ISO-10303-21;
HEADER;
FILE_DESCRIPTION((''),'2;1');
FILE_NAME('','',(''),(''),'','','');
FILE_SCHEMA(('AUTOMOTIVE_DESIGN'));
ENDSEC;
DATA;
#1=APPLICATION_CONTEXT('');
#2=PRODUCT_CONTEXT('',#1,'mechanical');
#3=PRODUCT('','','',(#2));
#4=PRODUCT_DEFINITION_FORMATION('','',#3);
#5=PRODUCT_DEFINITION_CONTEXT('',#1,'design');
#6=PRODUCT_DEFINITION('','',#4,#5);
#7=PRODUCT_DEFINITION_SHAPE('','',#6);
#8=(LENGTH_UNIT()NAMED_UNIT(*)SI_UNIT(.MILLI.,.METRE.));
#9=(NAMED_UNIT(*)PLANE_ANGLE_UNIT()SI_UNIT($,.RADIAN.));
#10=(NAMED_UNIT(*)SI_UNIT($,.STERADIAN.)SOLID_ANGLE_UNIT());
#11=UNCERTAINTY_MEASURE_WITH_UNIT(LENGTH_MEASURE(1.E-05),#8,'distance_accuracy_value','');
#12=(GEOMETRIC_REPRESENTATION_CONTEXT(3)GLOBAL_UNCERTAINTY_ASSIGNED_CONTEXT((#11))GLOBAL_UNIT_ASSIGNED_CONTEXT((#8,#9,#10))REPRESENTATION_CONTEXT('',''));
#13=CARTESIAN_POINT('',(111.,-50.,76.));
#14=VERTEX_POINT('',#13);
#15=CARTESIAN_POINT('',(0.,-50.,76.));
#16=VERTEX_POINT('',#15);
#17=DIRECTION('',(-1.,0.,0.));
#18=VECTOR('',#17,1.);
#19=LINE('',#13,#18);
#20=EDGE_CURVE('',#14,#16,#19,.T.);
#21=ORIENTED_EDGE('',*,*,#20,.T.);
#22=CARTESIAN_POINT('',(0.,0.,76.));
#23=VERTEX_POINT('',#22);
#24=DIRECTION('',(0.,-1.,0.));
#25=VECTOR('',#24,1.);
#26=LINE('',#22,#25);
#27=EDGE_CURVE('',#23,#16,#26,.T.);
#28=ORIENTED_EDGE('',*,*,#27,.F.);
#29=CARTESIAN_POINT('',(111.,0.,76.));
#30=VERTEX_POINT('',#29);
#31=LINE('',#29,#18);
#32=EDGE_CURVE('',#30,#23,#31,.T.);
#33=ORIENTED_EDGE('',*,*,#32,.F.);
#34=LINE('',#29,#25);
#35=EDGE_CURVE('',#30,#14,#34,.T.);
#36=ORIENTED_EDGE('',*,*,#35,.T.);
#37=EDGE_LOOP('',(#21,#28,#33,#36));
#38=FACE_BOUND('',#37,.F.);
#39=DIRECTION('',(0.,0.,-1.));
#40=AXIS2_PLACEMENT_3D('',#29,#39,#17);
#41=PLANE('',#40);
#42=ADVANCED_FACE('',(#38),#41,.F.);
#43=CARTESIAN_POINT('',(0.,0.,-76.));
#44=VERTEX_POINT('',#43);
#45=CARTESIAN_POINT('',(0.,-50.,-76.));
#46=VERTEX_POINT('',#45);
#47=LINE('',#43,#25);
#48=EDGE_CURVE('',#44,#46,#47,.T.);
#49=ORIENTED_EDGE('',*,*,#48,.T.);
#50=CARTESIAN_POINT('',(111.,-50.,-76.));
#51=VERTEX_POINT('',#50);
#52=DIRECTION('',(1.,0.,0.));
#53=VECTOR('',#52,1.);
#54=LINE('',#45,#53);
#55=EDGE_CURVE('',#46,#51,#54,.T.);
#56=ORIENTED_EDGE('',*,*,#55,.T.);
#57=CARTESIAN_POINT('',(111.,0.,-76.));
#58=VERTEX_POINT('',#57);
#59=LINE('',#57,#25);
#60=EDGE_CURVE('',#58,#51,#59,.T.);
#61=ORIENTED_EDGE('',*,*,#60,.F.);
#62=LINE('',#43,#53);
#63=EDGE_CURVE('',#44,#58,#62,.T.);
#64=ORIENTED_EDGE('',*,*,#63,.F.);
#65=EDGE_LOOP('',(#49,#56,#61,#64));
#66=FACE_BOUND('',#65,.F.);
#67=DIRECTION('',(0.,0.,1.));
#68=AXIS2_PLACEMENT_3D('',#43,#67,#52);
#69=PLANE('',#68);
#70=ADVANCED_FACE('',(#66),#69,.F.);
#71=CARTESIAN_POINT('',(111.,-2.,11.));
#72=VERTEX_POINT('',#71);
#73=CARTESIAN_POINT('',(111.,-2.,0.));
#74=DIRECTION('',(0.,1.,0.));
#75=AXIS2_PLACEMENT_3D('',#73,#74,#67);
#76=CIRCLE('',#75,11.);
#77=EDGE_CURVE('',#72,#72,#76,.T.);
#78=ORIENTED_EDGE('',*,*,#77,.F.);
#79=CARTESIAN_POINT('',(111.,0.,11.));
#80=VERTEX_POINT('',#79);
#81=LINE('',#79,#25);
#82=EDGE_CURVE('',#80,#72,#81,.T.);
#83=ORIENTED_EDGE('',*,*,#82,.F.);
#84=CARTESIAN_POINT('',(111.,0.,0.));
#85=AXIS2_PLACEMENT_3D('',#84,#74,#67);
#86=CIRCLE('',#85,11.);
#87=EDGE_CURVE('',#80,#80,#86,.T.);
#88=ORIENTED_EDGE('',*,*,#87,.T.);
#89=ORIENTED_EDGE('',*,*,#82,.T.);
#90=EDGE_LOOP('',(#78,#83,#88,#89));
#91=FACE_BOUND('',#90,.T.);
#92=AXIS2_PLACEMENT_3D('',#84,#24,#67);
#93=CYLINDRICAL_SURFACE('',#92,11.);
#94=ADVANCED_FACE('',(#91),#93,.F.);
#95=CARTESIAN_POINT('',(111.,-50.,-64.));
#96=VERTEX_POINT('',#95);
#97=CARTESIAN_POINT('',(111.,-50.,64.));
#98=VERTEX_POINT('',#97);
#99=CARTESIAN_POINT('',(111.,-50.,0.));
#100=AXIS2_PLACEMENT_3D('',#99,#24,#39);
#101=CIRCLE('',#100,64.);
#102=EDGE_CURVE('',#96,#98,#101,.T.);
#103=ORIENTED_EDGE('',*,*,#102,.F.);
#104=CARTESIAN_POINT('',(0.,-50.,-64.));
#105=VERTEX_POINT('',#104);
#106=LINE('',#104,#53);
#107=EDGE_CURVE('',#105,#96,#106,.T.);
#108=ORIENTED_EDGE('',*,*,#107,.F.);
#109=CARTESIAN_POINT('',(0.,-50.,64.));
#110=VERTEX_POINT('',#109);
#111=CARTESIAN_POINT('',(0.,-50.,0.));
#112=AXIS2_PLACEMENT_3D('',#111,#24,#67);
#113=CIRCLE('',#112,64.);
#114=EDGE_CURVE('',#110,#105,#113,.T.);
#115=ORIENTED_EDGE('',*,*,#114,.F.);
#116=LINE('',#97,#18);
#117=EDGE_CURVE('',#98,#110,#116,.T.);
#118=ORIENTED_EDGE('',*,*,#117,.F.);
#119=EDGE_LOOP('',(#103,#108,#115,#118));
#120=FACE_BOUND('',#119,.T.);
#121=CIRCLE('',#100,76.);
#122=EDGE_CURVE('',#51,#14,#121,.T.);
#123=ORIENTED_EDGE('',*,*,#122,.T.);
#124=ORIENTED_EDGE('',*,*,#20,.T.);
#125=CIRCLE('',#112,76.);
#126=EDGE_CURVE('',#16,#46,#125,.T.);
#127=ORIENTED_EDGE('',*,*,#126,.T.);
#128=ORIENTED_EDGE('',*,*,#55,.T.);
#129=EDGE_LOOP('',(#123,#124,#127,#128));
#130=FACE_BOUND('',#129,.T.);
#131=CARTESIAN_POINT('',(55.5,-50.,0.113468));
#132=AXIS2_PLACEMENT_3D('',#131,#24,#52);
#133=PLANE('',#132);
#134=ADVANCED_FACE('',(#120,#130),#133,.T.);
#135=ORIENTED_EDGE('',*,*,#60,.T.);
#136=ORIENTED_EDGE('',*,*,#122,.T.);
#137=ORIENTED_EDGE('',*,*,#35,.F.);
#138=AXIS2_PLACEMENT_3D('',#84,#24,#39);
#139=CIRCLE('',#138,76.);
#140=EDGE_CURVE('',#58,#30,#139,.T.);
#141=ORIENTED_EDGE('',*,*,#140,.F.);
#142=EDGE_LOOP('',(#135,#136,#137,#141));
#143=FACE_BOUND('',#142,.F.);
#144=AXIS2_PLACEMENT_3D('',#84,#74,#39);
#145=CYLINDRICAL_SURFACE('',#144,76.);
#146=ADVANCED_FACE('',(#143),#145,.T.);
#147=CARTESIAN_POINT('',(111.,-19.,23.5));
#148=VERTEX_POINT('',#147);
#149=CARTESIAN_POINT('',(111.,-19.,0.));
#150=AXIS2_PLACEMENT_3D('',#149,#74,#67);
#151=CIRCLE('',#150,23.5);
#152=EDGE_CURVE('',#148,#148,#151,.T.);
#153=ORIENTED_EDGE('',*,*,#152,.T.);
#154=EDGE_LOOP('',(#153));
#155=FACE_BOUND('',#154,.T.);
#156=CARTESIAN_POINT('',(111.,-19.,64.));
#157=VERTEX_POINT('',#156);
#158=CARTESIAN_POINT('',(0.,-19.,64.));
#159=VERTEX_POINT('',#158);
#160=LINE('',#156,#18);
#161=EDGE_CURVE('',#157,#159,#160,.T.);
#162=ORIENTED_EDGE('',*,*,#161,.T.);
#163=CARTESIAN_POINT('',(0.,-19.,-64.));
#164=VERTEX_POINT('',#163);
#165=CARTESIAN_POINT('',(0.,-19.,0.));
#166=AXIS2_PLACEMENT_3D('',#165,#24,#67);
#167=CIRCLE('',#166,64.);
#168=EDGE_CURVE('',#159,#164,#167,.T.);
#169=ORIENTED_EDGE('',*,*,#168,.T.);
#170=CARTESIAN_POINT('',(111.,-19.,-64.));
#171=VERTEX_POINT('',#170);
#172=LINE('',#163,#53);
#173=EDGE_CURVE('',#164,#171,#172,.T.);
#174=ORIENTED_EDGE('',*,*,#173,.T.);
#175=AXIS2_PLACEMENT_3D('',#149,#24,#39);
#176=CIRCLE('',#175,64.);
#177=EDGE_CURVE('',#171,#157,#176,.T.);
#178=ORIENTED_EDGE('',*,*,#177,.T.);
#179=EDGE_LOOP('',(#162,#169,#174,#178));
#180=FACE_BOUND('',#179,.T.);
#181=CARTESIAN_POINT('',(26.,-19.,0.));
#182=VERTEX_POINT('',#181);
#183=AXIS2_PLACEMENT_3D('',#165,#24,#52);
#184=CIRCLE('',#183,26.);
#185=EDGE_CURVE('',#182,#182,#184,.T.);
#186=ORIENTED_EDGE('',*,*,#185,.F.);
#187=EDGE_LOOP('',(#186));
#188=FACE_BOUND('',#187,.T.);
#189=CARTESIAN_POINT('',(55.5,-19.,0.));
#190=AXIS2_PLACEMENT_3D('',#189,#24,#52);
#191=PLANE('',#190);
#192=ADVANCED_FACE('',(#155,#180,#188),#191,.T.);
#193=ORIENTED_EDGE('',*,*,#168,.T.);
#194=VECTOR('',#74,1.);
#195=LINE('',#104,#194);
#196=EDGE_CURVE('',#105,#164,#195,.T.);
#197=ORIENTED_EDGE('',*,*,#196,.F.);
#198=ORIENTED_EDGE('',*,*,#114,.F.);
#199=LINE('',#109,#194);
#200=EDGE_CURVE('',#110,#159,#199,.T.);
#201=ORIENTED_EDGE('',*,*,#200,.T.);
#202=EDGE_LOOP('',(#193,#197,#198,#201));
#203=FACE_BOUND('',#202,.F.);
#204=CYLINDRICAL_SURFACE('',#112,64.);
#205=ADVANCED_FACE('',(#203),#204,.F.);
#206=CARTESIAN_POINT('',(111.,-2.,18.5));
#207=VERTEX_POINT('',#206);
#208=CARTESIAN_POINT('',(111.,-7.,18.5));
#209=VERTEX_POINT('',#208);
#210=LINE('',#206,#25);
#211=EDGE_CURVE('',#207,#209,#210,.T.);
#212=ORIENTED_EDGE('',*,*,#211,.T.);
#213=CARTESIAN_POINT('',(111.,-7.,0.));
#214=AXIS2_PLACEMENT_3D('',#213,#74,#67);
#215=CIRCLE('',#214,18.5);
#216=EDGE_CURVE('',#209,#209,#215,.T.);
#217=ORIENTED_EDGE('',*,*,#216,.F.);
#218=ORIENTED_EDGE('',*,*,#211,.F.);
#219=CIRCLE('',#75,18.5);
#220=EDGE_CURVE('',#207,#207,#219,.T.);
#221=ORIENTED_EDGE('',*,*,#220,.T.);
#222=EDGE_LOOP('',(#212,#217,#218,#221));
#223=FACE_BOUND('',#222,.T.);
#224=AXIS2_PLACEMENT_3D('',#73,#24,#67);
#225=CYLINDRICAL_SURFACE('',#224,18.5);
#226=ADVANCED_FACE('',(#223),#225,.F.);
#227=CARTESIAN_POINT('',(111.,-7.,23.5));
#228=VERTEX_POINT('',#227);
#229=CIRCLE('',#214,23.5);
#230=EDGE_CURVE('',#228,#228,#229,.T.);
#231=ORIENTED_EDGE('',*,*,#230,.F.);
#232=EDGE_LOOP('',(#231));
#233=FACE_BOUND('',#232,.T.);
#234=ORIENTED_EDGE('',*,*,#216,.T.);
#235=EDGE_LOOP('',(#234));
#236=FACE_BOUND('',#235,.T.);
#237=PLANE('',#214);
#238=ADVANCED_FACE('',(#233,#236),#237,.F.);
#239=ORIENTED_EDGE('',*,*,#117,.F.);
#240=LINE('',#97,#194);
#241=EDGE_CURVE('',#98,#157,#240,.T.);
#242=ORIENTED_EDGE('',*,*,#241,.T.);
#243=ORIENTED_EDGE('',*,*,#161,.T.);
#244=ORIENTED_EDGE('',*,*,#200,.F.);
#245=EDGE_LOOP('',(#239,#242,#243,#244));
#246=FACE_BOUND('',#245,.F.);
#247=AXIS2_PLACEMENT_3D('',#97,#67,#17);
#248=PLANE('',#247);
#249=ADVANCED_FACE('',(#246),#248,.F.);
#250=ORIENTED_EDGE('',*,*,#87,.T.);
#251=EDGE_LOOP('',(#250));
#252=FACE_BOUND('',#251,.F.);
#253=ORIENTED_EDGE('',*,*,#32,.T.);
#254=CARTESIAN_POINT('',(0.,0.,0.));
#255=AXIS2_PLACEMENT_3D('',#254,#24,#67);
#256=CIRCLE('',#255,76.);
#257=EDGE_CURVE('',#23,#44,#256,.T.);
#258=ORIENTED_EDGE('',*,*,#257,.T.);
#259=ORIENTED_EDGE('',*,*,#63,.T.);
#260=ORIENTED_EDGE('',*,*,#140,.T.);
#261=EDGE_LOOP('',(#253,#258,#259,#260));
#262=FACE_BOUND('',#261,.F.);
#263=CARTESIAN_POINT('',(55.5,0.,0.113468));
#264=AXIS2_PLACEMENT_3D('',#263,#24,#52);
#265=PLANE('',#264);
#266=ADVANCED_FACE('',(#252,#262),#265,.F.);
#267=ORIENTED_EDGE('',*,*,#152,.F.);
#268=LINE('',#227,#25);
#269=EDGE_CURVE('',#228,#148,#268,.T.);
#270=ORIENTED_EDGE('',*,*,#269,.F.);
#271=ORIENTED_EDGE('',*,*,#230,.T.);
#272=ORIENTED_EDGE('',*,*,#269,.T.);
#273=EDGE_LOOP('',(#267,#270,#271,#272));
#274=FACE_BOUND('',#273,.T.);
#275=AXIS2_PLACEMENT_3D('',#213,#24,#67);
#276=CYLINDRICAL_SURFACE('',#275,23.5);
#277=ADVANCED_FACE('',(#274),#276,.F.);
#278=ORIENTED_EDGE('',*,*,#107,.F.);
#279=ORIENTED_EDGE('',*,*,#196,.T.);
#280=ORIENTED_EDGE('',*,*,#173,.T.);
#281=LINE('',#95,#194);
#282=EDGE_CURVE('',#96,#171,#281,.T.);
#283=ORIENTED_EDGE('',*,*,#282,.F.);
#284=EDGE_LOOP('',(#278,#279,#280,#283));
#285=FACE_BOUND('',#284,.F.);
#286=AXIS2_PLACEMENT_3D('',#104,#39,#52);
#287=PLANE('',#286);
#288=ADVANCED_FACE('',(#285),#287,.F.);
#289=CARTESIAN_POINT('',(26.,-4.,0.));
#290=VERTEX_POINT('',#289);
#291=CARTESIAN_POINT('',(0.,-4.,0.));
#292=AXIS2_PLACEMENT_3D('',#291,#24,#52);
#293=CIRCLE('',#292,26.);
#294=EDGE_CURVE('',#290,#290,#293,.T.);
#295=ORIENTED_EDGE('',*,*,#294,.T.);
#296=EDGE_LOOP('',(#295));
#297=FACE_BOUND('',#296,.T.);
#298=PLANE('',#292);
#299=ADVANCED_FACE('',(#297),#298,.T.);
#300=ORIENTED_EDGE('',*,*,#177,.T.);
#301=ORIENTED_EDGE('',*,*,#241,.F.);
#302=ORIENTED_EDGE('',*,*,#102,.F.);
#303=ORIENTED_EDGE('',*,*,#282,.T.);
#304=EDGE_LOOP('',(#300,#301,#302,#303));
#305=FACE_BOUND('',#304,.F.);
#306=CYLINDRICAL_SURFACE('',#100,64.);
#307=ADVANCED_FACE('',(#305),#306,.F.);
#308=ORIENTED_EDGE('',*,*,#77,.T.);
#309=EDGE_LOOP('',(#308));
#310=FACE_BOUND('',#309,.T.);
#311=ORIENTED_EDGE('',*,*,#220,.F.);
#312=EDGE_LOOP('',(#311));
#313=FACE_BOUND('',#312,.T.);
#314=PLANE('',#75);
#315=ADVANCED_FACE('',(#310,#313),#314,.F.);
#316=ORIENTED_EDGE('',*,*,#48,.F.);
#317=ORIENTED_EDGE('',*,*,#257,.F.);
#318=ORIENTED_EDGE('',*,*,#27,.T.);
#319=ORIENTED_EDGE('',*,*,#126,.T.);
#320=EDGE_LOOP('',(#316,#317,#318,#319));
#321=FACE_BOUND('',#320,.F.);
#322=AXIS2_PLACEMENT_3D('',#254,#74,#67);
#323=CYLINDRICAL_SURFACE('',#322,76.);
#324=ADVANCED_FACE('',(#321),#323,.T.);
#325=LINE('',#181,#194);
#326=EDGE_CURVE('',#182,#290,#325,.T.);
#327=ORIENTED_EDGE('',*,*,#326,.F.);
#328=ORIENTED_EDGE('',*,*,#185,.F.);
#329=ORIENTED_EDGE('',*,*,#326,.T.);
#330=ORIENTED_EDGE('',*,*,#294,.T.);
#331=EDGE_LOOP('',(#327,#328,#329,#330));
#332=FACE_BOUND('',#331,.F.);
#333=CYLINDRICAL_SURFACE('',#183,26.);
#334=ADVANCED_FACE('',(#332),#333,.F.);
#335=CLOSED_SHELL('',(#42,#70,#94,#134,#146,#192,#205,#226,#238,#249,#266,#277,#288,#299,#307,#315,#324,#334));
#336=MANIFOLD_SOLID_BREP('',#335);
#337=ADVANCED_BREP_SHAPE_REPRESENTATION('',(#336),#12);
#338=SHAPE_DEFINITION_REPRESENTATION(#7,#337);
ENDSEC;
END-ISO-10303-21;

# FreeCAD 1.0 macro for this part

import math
import FreeCAD as App
import Part
import Sketcher
Q = App.Units.Quantity


def add_polygon(sketch, points):
    """Adds a closed chain of lines whose ends are joined by coincident constraints."""
    first, n = sketch.GeometryCount, len(points)
    for a, b in zip(points, points[1:] + points[:1]):
        sketch.addGeometry(Part.LineSegment(App.Vector(*a, 0), App.Vector(*b, 0)), False)
    for i in range(n):
        sketch.addConstraint(Sketcher.Constraint("Coincident", first + i, 2, first + (i + 1) % n, 1))

doc = App.newDocument("Part")
body = doc.addObject("PartDesign::Body", "Body")

sketch1 = body.newObject("Sketcher::SketchObject", "Sketch")
sketch1.AttachmentSupport = (doc.getObject("XZ_Plane"), [""])
sketch1.MapMode = "FlatFace"
sketch1.addGeometry([
    Part.ArcOfCircle(Part.Circle(App.Vector(111, 0, 0), App.Vector(0, 0, 1), 76), math.radians(-90), math.radians(90)),
    Part.LineSegment(App.Vector(111, 76, 0), App.Vector(0, 76, 0)),
    Part.ArcOfCircle(Part.Circle(App.Vector(0, 0, 0), App.Vector(0, 0, 1), 76), math.radians(90), math.radians(270)),
    Part.LineSegment(App.Vector(0, -76, 0), App.Vector(111, -76, 0)),
], False)
sketch1.addConstraint([
    Sketcher.Constraint("Tangent", 0, 2, 1, 1),
    Sketcher.Constraint("Tangent", 1, 2, 2, 1),
    Sketcher.Constraint("Tangent", 2, 2, 3, 1),
    Sketcher.Constraint("Tangent", 3, 2, 0, 1),
    Sketcher.Constraint("Horizontal", 1),
    Sketcher.Constraint("Horizontal", 3),
    Sketcher.Constraint("Coincident", 2, 3, -1, 1),
    Sketcher.Constraint("Radius", 0, Q("76 mm")),
    Sketcher.Constraint("DistanceX", 1, 2, 1, 1, Q("111 mm")),
])
pad1 = body.newObject("PartDesign::Pad", "Pad")
pad1.Profile = sketch1
pad1.Length = 50

sketch2 = body.newObject("Sketcher::SketchObject", "Sketch001")
sketch2.AttachmentSupport = (doc.getObject("XZ_Plane"), [""])
sketch2.MapMode = "FlatFace"
sketch2.AttachmentOffset = App.Placement(App.Vector(0, 0, 50), App.Rotation())
sketch2.addGeometry([
    Part.LineSegment(App.Vector(111, 64, 0), App.Vector(0, 64, 0)),
    Part.ArcOfCircle(Part.Circle(App.Vector(0, 0, 0), App.Vector(0, 0, 1), 64), math.radians(90), math.radians(270)),
    Part.LineSegment(App.Vector(0, -64, 0), App.Vector(111, -64, 0)),
    Part.ArcOfCircle(Part.Circle(App.Vector(111, 0, 0), App.Vector(0, 0, 1), 64), math.radians(-90), math.radians(90)),
], False)
sketch2.addConstraint([
    Sketcher.Constraint("Tangent", 0, 2, 1, 1),
    Sketcher.Constraint("Tangent", 1, 2, 2, 1),
    Sketcher.Constraint("Tangent", 2, 2, 3, 1),
    Sketcher.Constraint("Tangent", 3, 2, 0, 1),
    Sketcher.Constraint("Horizontal", 0),
    Sketcher.Constraint("Horizontal", 2),
    Sketcher.Constraint("Coincident", 1, 3, -1, 1),
    Sketcher.Constraint("Radius", 1, Q("64 mm")),
    Sketcher.Constraint("DistanceX", 0, 2, 0, 1, Q("111 mm")),
])
pocket1 = body.newObject("PartDesign::Pocket", "Pocket")
pocket1.Profile = sketch2
pocket1.Length = 31

sketch3 = body.newObject("Sketcher::SketchObject", "Sketch002")
sketch3.AttachmentSupport = (doc.getObject("XZ_Plane"), [""])
sketch3.MapMode = "FlatFace"
sketch3.AttachmentOffset = App.Placement(App.Vector(0, 0, 19), App.Rotation())
sketch3.addGeometry(Part.Circle(App.Vector(0, 0, 0), App.Vector(0, 0, 1), 26), False)
sketch3.addConstraint([
    Sketcher.Constraint("Coincident", 0, 3, -1, 1),
    Sketcher.Constraint("Diameter", 0, Q("52 mm")),
])
pocket2 = body.newObject("PartDesign::Pocket", "Pocket001")
pocket2.Profile = sketch3
pocket2.Length = 15

sketch4 = body.newObject("Sketcher::SketchObject", "Sketch003")
sketch4.AttachmentSupport = (doc.getObject("YZ_Plane"), [""])
sketch4.MapMode = "FlatFace"
sketch4.AttachmentOffset = App.Placement(App.Vector(0, 0, 111), App.Rotation())
add_polygon(sketch4, [(-7, 23.5), (-19, 23.5), (-19, 0), (0, 0), (0, 11), (-2, 11), (-2, 18.5), (-7, 18.5)])
sketch4.addConstraint([
    Sketcher.Constraint("Horizontal", 0),
    Sketcher.Constraint("Vertical", 1),
    Sketcher.Constraint("Horizontal", 2),
    Sketcher.Constraint("Vertical", 3),
    Sketcher.Constraint("Horizontal", 4),
    Sketcher.Constraint("Vertical", 5),
    Sketcher.Constraint("Horizontal", 6),
    Sketcher.Constraint("Vertical", 7),
    Sketcher.Constraint("Coincident", 2, 2, -1, 1),
    Sketcher.Constraint("Equal", 6, 7),
    Sketcher.Constraint("DistanceX", 0, 2, 0, 1, Q("12 mm")),
    Sketcher.Constraint("DistanceX", 2, 1, 2, 2, Q("19 mm")),
    Sketcher.Constraint("DistanceX", 4, 2, 4, 1, Q("2 mm")),
    Sketcher.Constraint("DistanceY", 3, 1, 3, 2, Q("11 mm")),
    Sketcher.Constraint("DistanceY", 1, 2, 1, 1, Q("23.5 mm")),
])
groove = body.newObject("PartDesign::Groove", "Groove")
groove.Profile = sketch4
groove.ReferenceAxis = (sketch4, ["H_Axis"])
groove.Angle = 360

doc.recompute()
